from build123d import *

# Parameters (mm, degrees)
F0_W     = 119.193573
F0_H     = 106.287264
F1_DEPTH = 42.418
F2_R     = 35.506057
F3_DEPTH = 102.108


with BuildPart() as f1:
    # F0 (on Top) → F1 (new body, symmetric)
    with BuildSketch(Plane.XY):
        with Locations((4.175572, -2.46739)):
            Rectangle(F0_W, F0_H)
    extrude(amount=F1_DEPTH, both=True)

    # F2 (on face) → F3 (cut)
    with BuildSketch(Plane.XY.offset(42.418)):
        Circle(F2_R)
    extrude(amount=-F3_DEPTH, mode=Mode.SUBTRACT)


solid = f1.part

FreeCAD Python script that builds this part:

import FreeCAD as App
import Part
import Sketcher

V = App.Vector
Q = App.Units.Quantity

doc = App.newDocument("Part")
params = doc.addObject("Spreadsheet::Sheet", "Params")
for row, (alias, value) in enumerate([
    ("pad1_length", "3.34 in"),
    ("pocket1_length", "4.02 in"),
], start=1):
    params.set(f"A{row}", alias)
    params.set(f"B{row}", "=" + value)
    params.setAlias(f"B{row}", alias)

body = doc.addObject("PartDesign::Body", "Body")

# Sketch on XY plane
sketch1 = body.newObject("Sketcher::SketchObject", "Sketch")
sketch1.AttachmentSupport = (doc.getObject("XY_Plane"), [""])
sketch1.MapMode = "FlatFace"
sketch1.addGeometry([
    Part.LineSegment(V(-55, 51, 0), V(-55, -56, 0)),
    Part.LineSegment(V(-55, -56, 0), V(64, -56, 0)),
    Part.LineSegment(V(64, -56, 0), V(64, 51, 0)),
    Part.LineSegment(V(64, 51, 0), V(-55, 51, 0)),
], False)
sketch1.addConstraint([
    Sketcher.Constraint("Coincident", 0, 2, 1, 1),
    Sketcher.Constraint("Coincident", 1, 2, 2, 1),
    Sketcher.Constraint("Coincident", 2, 2, 3, 1),
    Sketcher.Constraint("Coincident", 3, 2, 0, 1),
    Sketcher.Constraint("Vertical", 0),
    Sketcher.Constraint("Horizontal", 1),
    Sketcher.Constraint("Vertical", 2),
    Sketcher.Constraint("Horizontal", 3),
    Sketcher.Constraint("DistanceX", 1, 1, 1, 2, Q("119.193573 mm")),
    Sketcher.Constraint("DistanceY", 0, 2, 0, 1, Q("106.287264 mm")),
    Sketcher.Constraint("DistanceY", 0, 2, -1, 1, Q("55.611022 mm")),
    Sketcher.Constraint("DistanceX", -1, 1, 1, 2, Q("63.772359 mm")),
])
pad1 = body.newObject("PartDesign::Pad", "Pad")
pad1.Profile = sketch1
pad1.setExpression("Length", "Params.pad1_length")
pad1.Midplane = True

# Sketch on XY plane
sketch2 = body.newObject("Sketcher::SketchObject", "Sketch001")
sketch2.AttachmentSupport = (doc.getObject("XY_Plane"), [""])
sketch2.MapMode = "FlatFace"
sketch2.AttachmentOffset = App.Placement(V(0, 0, 1.67 * 25.4), App.Rotation())
sketch2.addGeometry(Part.Circle(V(0, 0, 0), V(0, 0, 1), 36), False)
sketch2.addConstraint([
    Sketcher.Constraint("Coincident", 0, 3, -1, 1),
    Sketcher.Constraint("Diameter", 0, Q("71.012114 mm")),
])
pocket1 = body.newObject("PartDesign::Pocket", "Pocket")
pocket1.Profile = sketch2
pocket1.setExpression("Length", "Params.pocket1_length")

doc.recompute()
